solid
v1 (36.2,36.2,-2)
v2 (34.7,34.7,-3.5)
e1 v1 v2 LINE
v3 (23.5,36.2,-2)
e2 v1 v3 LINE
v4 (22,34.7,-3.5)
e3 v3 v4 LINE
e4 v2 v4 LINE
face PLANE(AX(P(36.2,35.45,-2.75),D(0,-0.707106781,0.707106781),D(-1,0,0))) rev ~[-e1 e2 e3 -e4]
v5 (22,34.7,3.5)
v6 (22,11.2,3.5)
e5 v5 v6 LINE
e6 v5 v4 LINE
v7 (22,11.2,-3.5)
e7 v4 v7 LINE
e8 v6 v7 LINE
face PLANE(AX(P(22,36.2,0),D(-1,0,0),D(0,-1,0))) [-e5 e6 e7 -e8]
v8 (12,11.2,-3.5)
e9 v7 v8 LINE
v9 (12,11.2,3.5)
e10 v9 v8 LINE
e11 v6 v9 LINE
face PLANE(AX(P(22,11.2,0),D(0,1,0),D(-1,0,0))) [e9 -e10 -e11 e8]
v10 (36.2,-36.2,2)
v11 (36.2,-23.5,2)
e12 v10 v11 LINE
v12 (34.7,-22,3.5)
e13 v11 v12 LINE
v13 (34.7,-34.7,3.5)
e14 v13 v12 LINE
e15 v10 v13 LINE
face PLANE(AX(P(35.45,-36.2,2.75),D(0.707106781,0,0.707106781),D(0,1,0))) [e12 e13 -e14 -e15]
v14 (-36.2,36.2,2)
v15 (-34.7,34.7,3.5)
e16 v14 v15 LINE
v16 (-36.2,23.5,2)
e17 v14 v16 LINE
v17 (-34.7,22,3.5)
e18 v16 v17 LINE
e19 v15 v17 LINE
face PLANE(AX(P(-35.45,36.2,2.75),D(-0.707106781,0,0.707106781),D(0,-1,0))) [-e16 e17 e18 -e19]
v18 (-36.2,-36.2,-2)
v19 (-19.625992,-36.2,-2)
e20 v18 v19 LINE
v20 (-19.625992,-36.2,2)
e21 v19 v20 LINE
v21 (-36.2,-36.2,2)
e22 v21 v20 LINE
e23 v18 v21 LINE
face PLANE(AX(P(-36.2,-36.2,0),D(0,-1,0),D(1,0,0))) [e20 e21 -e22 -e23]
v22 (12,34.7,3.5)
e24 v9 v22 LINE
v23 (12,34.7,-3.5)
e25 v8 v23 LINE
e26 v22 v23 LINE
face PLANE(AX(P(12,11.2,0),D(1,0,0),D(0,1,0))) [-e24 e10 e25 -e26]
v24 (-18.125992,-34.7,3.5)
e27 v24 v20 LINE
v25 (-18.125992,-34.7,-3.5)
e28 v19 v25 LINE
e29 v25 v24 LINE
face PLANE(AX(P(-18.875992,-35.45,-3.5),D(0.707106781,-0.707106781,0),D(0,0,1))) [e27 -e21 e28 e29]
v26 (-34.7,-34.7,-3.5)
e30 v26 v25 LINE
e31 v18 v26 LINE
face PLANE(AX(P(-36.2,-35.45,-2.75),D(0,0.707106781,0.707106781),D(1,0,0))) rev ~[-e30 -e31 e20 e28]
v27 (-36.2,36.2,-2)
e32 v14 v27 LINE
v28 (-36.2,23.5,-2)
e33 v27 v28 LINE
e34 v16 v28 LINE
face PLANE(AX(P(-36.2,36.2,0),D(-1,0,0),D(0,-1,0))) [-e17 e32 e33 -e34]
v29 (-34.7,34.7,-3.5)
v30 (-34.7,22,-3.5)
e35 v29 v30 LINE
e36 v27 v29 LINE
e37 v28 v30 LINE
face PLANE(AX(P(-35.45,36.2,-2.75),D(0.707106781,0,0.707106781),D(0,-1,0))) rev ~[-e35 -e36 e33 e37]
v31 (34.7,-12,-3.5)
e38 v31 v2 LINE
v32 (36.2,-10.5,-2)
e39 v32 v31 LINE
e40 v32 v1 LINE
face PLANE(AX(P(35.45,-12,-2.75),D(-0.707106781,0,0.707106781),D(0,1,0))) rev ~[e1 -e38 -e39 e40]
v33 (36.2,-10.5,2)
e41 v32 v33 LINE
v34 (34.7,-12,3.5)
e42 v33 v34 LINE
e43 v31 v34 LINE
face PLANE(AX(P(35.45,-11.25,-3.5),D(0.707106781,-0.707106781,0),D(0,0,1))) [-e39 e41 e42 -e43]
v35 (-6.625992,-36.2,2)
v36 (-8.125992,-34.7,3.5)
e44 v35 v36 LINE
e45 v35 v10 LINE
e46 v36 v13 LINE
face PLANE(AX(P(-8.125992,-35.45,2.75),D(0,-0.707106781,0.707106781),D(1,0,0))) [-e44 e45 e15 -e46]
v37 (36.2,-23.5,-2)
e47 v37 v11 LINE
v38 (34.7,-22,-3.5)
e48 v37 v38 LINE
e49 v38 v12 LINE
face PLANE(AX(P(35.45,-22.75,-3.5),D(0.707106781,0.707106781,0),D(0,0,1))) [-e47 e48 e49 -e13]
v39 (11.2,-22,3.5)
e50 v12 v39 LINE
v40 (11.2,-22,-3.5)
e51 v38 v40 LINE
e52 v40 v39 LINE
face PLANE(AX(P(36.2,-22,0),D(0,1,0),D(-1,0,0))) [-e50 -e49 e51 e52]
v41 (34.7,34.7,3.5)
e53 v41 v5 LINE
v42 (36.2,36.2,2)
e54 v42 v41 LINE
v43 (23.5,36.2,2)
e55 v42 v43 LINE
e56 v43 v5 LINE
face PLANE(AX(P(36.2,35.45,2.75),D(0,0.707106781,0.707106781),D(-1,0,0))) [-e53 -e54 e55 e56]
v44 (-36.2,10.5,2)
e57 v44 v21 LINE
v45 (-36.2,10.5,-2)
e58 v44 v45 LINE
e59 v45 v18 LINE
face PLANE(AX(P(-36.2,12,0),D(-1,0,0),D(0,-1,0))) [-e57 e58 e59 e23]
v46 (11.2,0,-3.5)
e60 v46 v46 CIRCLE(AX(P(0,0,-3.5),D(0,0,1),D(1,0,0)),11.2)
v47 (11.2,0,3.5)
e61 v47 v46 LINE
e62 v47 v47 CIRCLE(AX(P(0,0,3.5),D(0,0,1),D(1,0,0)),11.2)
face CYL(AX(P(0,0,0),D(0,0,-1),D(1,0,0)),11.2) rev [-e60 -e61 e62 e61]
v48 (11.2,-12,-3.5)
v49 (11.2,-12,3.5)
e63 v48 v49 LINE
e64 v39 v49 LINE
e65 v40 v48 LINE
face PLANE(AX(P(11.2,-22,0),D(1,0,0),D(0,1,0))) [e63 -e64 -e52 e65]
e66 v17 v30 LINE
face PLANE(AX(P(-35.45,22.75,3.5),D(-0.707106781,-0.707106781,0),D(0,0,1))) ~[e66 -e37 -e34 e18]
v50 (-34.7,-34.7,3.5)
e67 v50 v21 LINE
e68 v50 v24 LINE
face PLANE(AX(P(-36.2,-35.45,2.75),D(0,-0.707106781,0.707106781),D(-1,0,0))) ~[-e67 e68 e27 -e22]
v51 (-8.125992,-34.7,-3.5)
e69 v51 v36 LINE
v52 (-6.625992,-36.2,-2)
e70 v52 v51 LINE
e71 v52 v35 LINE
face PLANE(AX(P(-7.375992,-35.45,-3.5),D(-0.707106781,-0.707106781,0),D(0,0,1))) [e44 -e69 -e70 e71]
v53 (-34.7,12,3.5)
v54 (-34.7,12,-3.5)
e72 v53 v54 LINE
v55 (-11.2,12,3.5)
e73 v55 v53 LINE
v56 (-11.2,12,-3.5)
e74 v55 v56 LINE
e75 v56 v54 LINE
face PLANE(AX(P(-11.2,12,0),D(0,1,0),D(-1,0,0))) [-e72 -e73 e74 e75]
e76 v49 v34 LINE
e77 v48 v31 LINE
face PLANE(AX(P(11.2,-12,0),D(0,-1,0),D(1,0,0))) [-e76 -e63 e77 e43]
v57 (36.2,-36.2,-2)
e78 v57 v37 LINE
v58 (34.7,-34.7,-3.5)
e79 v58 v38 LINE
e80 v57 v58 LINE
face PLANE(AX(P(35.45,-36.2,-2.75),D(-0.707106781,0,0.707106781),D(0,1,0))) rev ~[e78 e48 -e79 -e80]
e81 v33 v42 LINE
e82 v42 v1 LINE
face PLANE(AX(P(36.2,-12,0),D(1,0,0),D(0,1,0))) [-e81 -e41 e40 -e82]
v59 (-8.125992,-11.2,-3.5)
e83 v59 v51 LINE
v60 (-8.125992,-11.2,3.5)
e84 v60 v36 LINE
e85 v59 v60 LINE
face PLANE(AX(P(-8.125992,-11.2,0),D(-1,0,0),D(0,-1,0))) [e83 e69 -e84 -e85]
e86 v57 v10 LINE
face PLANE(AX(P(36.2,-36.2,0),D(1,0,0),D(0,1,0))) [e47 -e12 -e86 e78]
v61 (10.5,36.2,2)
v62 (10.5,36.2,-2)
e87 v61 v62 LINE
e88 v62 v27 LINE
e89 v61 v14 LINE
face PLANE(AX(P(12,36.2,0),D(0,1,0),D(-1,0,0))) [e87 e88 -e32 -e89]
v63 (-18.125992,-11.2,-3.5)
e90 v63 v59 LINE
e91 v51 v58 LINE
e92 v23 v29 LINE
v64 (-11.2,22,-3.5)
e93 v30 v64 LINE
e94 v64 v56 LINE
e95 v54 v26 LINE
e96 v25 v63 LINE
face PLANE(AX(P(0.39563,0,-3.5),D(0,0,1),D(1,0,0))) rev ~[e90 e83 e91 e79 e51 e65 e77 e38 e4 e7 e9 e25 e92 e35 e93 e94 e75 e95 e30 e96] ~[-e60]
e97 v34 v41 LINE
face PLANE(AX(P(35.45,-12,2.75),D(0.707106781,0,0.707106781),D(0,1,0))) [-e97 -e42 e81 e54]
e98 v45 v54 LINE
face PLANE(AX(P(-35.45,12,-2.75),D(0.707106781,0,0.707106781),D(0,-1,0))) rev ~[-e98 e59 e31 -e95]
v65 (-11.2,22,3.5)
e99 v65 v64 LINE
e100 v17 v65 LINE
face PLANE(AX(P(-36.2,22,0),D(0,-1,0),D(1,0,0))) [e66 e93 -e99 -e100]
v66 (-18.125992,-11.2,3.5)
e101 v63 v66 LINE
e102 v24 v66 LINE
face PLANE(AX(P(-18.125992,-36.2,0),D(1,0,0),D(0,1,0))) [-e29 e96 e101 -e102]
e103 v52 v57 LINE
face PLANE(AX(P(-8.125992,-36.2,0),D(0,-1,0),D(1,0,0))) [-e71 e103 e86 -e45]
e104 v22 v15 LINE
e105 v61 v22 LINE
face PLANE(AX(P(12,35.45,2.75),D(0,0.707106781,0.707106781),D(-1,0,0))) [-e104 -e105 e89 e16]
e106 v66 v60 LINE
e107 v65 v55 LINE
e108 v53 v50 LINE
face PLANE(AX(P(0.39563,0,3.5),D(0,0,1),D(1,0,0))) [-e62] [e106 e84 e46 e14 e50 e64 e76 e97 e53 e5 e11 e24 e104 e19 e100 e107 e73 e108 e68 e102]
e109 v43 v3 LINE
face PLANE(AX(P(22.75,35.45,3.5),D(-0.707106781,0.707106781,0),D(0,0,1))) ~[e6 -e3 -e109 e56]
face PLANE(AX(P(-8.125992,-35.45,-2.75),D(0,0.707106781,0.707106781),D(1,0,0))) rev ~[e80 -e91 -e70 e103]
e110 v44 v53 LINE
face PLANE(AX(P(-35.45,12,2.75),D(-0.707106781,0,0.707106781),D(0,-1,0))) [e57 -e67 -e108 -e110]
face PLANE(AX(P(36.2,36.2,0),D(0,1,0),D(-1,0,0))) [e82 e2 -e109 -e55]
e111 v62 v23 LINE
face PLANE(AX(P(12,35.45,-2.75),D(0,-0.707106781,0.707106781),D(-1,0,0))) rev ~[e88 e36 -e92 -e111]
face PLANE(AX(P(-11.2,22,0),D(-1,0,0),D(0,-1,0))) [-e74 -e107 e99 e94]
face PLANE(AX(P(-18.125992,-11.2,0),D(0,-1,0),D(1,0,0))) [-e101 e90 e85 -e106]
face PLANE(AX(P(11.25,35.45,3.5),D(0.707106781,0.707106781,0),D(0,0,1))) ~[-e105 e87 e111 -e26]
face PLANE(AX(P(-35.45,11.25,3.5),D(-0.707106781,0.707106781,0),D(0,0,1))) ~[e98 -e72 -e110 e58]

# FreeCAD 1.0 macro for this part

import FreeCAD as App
import Part
import Sketcher
from FreeCAD import Vector


def edges_at(feature, points):
    """Names of the edges that pass closest to the given points."""
    edges = feature.Shape.Edges
    near = lambda p: min(range(len(edges)), key=lambda i: edges[i].distToShape(Part.Vertex(*p))[0])
    return sorted({f"Edge{near(p) + 1}" for p in points})

doc = App.newDocument("Part")
body = doc.addObject("PartDesign::Body", "Body")

# Sketch on XY plane
sketch1 = body.newObject("Sketcher::SketchObject", "Sketch")
sketch1.AttachmentSupport = (doc.getObject("XY_Plane"), [""])
sketch1.MapMode = "FlatFace"
sketch1.addGeometry([
    Part.LineSegment(Vector(-36, 12, 0), Vector(-36, -36, 0)),  # 0
    Part.LineSegment(Vector(-36, -36, 0), Vector(-18, -36, 0)),  # 1
    Part.LineSegment(Vector(-18, -36, 0), Vector(-18, -11, 0)),  # 2
    Part.LineSegment(Vector(-18, -11, 0), Vector(-8, -11, 0)),  # 3
    Part.LineSegment(Vector(-8, -11, 0), Vector(-8, -36, 0)),  # 4
    Part.LineSegment(Vector(-8, -36, 0), Vector(36, -36, 0)),  # 5
    Part.LineSegment(Vector(36, -36, 0), Vector(36, -22, 0)),  # 6
    Part.LineSegment(Vector(36, -22, 0), Vector(11, -22, 0)),  # 7
    Part.LineSegment(Vector(11, -22, 0), Vector(11, -12, 0)),  # 8
    Part.LineSegment(Vector(11, -12, 0), Vector(36, -12, 0)),  # 9
    Part.LineSegment(Vector(36, -12, 0), Vector(36, 36, 0)),  # 10
    Part.LineSegment(Vector(36, 36, 0), Vector(22, 36, 0)),  # 11
    Part.LineSegment(Vector(22, 36, 0), Vector(22, 11, 0)),  # 12
    Part.LineSegment(Vector(22, 11, 0), Vector(12, 11, 0)),  # 13
    Part.LineSegment(Vector(12, 11, 0), Vector(12, 36, 0)),  # 14
    Part.LineSegment(Vector(12, 36, 0), Vector(-36, 36, 0)),  # 15
    Part.LineSegment(Vector(-36, 36, 0), Vector(-36, 22, 0)),  # 16
    Part.LineSegment(Vector(-36, 22, 0), Vector(-11, 22, 0)),  # 17
    Part.LineSegment(Vector(-11, 22, 0), Vector(-11, 12, 0)),  # 18
    Part.LineSegment(Vector(-11, 12, 0), Vector(-36, 12, 0)),  # 19
    Part.Circle(Vector(0, 0, 0), Vector(0, 0, 1), 11),  # 20
], False)
sketch1.addConstraint([
    Sketcher.Constraint("Coincident", 0, 2, 1, 1),
    Sketcher.Constraint("Coincident", 1, 2, 2, 1),
    Sketcher.Constraint("Coincident", 2, 2, 3, 1),
    Sketcher.Constraint("Coincident", 3, 2, 4, 1),
    Sketcher.Constraint("Coincident", 4, 2, 5, 1),
    Sketcher.Constraint("Coincident", 5, 2, 6, 1),
    Sketcher.Constraint("Coincident", 6, 2, 7, 1),
    Sketcher.Constraint("Coincident", 7, 2, 8, 1),
    Sketcher.Constraint("Coincident", 8, 2, 9, 1),
    Sketcher.Constraint("Coincident", 9, 2, 10, 1),
    Sketcher.Constraint("Coincident", 10, 2, 11, 1),
    Sketcher.Constraint("Coincident", 11, 2, 12, 1),
    Sketcher.Constraint("Coincident", 12, 2, 13, 1),
    Sketcher.Constraint("Coincident", 13, 2, 14, 1),
    Sketcher.Constraint("Coincident", 14, 2, 15, 1),
    Sketcher.Constraint("Coincident", 15, 2, 16, 1),
    Sketcher.Constraint("Coincident", 16, 2, 17, 1),
    Sketcher.Constraint("Coincident", 17, 2, 18, 1),
    Sketcher.Constraint("Coincident", 18, 2, 19, 1),
    Sketcher.Constraint("Coincident", 19, 2, 0, 1),
    Sketcher.Constraint("Vertical", 0),
    Sketcher.Constraint("Horizontal", 1),
    Sketcher.Constraint("Vertical", 2),
    Sketcher.Constraint("Horizontal", 3),
    Sketcher.Constraint("Vertical", 4),
    Sketcher.Constraint("Horizontal", 5),
    Sketcher.Constraint("Vertical", 6),
    Sketcher.Constraint("Horizontal", 7),
    Sketcher.Constraint("Vertical", 8),
    Sketcher.Constraint("Horizontal", 9),
    Sketcher.Constraint("Vertical", 10),
    Sketcher.Constraint("Horizontal", 11),
    Sketcher.Constraint("Vertical", 12),
    Sketcher.Constraint("Horizontal", 13),
    Sketcher.Constraint("Vertical", 14),
    Sketcher.Constraint("Horizontal", 15),
    Sketcher.Constraint("Vertical", 16),
    Sketcher.Constraint("Horizontal", 17),
    Sketcher.Constraint("Vertical", 18),
    Sketcher.Constraint("Horizontal", 19),
    Sketcher.Constraint("Coincident", 20, 3, -1, 1),
    Sketcher.Constraint("Symmetric", 0, 2, 10, 2, -1, 1),
    Sketcher.Constraint("Symmetric", 5, 2, 15, 2, -1, 1),
    Sketcher.Constraint("Symmetric", 7, 2, 17, 2, -1, 1),
    Sketcher.Constraint("Symmetric", 0, 2, 5, 2, -2),
    Sketcher.Constraint("Equal", 3, 13),
    Sketcher.Constraint("Equal", 15, 0),
    Sketcher.Constraint("Equal", 19, 2),
    Sketcher.Constraint("Equal", 11, 6),
    Sketcher.Constraint("Equal", 13, 8),
    Sketcher.Constraint("Equal", 0, 10),
    Sketcher.Constraint("Equal", 4, 12),
    Sketcher.Constraint("Diameter", 20, 22.4),
    Sketcher.Constraint("DistanceX", 3, 1, 3, 2, 10.0),
    Sketcher.Constraint("DistanceX", 7, 2, 7, 1, 25.0),
    Sketcher.Constraint("DistanceX", 11, 2, 11, 1, 14.2),
    Sketcher.Constraint("DistanceX", 15, 2, 15, 1, 48.2),
    Sketcher.Constraint("DistanceX", 1, 1, 1, 2, 18.074008),
])
pad1 = body.newObject("PartDesign::Pad", "Pad")
pad1.Profile = sketch1
pad1.Length = 7
pad1.Midplane = True
doc.recompute()

chamfer = body.newObject("PartDesign::Chamfer", "Chamfer")
chamfer.Base = (pad1, edges_at(pad1, [
    (14.037, -36.2, 3.5),
    (36.2, -29.1, 3.5),
    (36.2, 12.1, 3.5),
    (-27.163, -36.2, 3.5),
    (-36.2, -12.1, 3.5),
    (-36.2, 29.1, 3.5),
    (-12.1, 36.2, 3.5),
    (29.1, 36.2, 3.5),
    (36.2, -29.1, -3.5),
    (14.037, -36.2, -3.5),
    (36.2, 12.1, -3.5),
    (29.1, 36.2, -3.5),
    (-12.1, 36.2, -3.5),
    (-36.2, 29.1, -3.5),
    (-36.2, -12.1, -3.5),
    (-27.163, -36.2, -3.5),
    (-8.126, -36.2, 0),
    (-18.126, -36.2, 0),
    (36.2, -22, 0),
    (36.2, -12, 0),
    (22, 36.2, 0),
    (12, 36.2, 0),
    (-36.2, 22, 0),
    (-36.2, 12, 0),
]))
chamfer.Size = 1.5

doc.recompute()
